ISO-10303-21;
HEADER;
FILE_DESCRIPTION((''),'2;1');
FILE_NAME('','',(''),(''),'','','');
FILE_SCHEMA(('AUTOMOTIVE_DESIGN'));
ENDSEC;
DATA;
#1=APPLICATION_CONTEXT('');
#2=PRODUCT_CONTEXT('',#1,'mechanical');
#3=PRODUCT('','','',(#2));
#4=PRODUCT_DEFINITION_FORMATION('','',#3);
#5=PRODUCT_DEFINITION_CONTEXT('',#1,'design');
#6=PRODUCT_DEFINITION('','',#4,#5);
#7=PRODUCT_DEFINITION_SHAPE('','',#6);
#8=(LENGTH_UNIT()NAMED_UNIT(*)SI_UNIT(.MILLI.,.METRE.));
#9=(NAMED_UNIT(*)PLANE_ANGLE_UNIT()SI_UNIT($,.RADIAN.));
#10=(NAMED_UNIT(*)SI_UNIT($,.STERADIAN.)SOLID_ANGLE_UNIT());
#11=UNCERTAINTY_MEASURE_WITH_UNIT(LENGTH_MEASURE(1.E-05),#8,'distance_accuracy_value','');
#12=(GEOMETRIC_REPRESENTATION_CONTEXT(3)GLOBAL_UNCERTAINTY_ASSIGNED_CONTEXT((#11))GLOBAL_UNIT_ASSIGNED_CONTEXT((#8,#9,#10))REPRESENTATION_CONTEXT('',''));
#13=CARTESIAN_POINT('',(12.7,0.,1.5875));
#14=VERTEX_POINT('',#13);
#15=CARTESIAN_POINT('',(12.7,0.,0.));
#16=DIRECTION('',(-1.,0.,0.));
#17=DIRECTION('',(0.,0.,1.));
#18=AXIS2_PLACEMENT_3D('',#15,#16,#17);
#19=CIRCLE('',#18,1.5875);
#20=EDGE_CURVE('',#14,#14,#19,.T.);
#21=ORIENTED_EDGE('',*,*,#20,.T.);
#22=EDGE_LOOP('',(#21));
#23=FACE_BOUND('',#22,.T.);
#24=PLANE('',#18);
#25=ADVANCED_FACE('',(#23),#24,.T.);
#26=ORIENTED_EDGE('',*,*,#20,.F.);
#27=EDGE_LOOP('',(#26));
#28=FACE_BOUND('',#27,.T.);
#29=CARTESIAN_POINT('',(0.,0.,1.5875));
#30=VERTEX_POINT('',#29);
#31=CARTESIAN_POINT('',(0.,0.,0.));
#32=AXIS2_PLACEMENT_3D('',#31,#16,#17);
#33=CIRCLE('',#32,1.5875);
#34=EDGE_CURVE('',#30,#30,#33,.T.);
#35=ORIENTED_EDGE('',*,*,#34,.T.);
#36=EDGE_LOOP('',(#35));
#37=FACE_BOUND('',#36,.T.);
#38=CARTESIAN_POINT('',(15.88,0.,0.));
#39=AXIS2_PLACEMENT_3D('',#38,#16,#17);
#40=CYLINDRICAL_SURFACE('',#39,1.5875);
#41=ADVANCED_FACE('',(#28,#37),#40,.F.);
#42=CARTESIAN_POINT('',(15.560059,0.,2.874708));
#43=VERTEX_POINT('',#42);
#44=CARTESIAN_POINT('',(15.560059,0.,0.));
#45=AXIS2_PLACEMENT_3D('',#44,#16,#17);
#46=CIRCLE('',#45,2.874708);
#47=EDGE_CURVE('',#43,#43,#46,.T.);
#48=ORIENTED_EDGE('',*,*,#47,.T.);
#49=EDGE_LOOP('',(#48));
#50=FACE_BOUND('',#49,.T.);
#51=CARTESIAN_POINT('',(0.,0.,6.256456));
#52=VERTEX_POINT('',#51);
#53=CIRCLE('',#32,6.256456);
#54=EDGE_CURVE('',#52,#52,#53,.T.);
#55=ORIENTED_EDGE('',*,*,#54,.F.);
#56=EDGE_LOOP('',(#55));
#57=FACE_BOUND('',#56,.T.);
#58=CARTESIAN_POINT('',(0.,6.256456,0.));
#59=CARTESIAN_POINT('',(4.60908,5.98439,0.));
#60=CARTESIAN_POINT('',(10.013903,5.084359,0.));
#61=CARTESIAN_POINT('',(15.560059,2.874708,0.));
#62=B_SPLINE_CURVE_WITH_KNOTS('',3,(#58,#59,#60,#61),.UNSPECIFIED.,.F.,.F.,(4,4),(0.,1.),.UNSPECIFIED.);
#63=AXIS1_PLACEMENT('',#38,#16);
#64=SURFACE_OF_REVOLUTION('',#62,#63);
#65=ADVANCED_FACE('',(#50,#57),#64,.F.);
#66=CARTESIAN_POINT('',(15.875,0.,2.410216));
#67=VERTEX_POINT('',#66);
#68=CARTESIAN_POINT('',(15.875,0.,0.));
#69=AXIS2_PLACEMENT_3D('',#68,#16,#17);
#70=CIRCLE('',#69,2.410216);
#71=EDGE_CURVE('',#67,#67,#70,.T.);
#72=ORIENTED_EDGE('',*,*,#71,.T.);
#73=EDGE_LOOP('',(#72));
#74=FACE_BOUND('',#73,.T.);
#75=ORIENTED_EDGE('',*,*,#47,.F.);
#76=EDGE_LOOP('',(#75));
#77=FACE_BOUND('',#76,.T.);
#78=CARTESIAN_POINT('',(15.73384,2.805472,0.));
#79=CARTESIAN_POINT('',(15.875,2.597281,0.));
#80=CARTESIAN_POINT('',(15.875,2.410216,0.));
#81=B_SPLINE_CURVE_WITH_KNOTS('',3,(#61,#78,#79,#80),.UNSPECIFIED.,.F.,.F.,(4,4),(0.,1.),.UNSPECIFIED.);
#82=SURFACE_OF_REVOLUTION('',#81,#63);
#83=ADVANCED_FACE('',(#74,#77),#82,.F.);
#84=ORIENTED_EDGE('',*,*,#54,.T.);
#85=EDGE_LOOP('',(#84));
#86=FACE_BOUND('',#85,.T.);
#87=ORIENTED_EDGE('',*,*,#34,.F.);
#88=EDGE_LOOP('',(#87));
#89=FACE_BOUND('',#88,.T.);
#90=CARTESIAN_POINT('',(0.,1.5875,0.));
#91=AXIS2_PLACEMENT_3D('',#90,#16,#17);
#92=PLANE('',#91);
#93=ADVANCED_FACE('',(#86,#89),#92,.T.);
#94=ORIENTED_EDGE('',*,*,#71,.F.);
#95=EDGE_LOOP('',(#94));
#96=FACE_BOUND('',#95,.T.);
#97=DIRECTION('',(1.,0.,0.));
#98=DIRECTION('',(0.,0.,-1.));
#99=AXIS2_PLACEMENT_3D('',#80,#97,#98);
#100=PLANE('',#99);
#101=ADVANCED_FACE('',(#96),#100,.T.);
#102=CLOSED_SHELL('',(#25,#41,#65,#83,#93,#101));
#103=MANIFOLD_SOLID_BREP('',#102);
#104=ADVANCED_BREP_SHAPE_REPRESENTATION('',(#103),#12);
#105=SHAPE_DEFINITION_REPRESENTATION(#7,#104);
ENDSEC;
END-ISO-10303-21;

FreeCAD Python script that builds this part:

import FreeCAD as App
import Part
import Sketcher
Q = App.Units.Quantity

doc = App.newDocument("Part")
body = doc.addObject("PartDesign::Body", "Body")

sketch1 = body.newObject("Sketcher::SketchObject", "Sketch")
sketch1.AttachmentSupport = (doc.getObject("XY_Plane"), [""])
sketch1.MapMode = "FlatFace"
sketch1.addGeometry([
    Part.LineSegment(App.Vector(15.875, 2.410216, 0), App.Vector(15.875, 0, 0)),
    Part.LineSegment(App.Vector(15.875, 0, 0), App.Vector(12.7, 0, 0)),
    Part.LineSegment(App.Vector(12.7, 0, 0), App.Vector(12.7, 1.5875, 0)),
    Part.LineSegment(App.Vector(12.7, 1.5875, 0), App.Vector(0, 1.5875, 0)),
    Part.LineSegment(App.Vector(0, 1.5875, 0), App.Vector(0, 6.256456, 0)),
    Part.BSplineCurve([App.Vector(0, 6.256456, 0), App.Vector(4.60908, 5.98439, 0), App.Vector(10.013903, 5.084359, 0), App.Vector(15.560059, 2.874708, 0)], [4, 4], [0, 1], False, 3, [1, 1, 1, 1], False),
    Part.BSplineCurve([App.Vector(15.875, 2.410216, 0), App.Vector(15.875, 2.597281, 0), App.Vector(15.73384, 2.805472, 0), App.Vector(15.560059, 2.874708, 0)], [4, 4], [0, 1], False, 3, [1, 1, 1, 1], False),
], False)
sketch1.addConstraint([
    Sketcher.Constraint("Block", 5),
    Sketcher.Constraint("Block", 6),
    Sketcher.Constraint("Coincident", 0, 2, 1, 1),
    Sketcher.Constraint("Coincident", 1, 2, 2, 1),
    Sketcher.Constraint("Coincident", 2, 2, 3, 1),
    Sketcher.Constraint("Coincident", 3, 2, 4, 1),
    Sketcher.Constraint("Coincident", 4, 2, 5, 1),
    Sketcher.Constraint("Coincident", 6, 1, 0, 1),
    Sketcher.Constraint("Vertical", 0),
    Sketcher.Constraint("Horizontal", 1),
    Sketcher.Constraint("Vertical", 2),
    Sketcher.Constraint("Horizontal", 3),
    Sketcher.Constraint("Vertical", 4),
    Sketcher.Constraint("PointOnObject", 0, 2, -1),
    Sketcher.Constraint("DistanceX", 3, 2, 3, 1, Q("0.5 in")),
    Sketcher.Constraint("DistanceY", 2, 1, 2, 2, Q("0.0625 in")),
])
revolution = body.newObject("PartDesign::Revolution", "Revolution")
revolution.Profile = sketch1
revolution.ReferenceAxis = (sketch1, ["H_Axis"])
revolution.Angle = 360

doc.recompute()
